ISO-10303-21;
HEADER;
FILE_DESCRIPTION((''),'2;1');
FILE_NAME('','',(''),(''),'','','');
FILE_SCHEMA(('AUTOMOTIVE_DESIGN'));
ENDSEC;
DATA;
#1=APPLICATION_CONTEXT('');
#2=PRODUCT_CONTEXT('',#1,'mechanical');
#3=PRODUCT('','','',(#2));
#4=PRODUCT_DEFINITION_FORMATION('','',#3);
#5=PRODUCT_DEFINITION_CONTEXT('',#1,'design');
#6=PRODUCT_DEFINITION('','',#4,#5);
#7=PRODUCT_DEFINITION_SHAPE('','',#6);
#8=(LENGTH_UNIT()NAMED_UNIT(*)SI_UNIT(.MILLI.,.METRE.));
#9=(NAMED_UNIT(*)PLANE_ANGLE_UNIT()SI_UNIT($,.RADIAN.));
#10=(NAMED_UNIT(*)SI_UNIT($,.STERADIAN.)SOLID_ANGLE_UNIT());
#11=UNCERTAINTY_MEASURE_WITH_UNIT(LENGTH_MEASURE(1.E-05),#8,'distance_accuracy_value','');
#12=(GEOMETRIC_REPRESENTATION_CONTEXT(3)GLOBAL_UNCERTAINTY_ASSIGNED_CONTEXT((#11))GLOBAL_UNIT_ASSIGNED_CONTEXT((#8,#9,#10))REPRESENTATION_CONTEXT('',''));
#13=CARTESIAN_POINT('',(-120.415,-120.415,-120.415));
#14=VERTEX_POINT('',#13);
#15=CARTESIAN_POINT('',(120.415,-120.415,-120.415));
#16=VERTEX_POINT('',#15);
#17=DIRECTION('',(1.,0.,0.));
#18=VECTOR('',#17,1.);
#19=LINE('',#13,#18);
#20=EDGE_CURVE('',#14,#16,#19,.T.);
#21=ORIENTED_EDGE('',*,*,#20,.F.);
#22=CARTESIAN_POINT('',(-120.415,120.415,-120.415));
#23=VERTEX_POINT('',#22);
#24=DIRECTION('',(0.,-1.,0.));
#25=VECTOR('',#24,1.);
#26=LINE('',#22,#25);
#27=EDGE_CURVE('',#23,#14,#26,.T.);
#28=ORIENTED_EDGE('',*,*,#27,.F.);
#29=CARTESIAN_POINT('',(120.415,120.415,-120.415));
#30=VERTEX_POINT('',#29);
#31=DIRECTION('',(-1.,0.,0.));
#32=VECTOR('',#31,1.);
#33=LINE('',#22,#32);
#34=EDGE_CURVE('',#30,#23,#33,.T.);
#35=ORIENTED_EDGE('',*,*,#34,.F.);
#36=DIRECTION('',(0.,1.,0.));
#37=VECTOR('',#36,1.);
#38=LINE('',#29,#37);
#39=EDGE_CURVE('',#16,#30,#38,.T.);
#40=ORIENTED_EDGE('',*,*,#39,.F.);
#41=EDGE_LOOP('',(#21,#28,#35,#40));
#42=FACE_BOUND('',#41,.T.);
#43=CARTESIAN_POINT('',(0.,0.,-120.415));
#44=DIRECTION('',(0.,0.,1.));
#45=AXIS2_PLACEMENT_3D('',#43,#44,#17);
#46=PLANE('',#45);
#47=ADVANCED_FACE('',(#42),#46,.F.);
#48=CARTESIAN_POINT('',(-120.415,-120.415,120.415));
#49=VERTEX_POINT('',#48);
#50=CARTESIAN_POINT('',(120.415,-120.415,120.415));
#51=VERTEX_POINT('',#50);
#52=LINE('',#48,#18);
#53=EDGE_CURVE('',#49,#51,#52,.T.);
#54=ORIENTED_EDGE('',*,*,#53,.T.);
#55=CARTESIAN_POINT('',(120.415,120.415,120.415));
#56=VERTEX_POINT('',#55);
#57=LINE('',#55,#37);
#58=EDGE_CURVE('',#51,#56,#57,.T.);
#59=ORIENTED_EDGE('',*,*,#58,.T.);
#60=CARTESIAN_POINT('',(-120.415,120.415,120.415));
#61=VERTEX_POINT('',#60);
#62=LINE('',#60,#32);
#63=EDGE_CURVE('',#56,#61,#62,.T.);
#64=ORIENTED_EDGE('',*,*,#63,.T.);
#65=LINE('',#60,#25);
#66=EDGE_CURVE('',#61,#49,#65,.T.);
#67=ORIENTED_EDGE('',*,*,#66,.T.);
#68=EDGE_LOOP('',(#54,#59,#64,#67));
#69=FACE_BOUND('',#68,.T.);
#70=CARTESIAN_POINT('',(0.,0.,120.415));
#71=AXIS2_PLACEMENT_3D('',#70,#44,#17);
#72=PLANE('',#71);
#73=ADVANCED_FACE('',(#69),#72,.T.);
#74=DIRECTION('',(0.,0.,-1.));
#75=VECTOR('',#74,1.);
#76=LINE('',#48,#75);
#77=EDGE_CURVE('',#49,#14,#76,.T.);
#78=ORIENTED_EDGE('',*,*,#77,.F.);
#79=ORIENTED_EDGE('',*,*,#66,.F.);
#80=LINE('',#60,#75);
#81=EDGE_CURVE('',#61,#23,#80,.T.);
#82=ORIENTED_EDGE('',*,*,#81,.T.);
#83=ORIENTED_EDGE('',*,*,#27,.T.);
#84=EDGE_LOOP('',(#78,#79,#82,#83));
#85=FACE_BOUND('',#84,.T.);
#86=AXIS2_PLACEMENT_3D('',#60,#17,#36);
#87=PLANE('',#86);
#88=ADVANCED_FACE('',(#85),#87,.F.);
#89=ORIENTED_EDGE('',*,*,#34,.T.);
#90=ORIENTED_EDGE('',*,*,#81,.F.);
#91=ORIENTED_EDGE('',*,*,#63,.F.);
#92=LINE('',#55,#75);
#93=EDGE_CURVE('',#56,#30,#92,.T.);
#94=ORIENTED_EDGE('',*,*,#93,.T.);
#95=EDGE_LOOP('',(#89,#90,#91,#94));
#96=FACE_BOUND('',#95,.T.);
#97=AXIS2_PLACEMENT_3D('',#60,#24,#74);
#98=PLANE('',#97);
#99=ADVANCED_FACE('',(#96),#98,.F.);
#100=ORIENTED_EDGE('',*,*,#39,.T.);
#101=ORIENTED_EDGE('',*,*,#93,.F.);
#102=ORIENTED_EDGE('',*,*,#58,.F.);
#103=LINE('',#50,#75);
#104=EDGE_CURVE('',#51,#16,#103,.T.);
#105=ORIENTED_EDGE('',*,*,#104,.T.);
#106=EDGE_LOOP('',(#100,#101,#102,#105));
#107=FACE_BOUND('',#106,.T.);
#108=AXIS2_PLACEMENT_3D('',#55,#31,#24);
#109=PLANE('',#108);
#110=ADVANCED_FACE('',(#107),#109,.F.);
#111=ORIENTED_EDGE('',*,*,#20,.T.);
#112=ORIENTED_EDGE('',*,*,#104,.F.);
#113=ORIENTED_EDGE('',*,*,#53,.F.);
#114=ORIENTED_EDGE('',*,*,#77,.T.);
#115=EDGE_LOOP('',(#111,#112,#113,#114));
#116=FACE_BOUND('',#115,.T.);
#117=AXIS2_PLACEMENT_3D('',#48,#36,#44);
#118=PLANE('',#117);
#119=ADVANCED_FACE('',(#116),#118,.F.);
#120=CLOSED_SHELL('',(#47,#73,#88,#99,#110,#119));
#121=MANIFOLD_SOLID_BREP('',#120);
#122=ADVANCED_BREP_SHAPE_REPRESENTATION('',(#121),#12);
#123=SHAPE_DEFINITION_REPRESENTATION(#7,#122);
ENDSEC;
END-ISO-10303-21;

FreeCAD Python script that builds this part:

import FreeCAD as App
import Part
import Sketcher

V = App.Vector


def add_polygon(sketch, points):
    """Adds a closed chain of lines whose ends are joined by coincident constraints."""
    first, n = sketch.GeometryCount, len(points)
    for a, b in zip(points, points[1:] + points[:1]):
        sketch.addGeometry(Part.LineSegment(App.Vector(*a, 0), App.Vector(*b, 0)), False)
    for i in range(n):
        sketch.addConstraint(Sketcher.Constraint("Coincident", first + i, 2, first + (i + 1) % n, 1))

doc = App.newDocument("Part")
body = doc.addObject("PartDesign::Body", "Body")

# Sketch on XY plane
sketch1 = body.newObject("Sketcher::SketchObject", "Sketch")
sketch1.AttachmentSupport = (doc.getObject("XY_Plane"), [""])
sketch1.MapMode = "FlatFace"
add_polygon(sketch1, [(-120, 120), (-120, -120), (120, -120), (120, 120)])  # lines 0-3
sketch1.addConstraint([
    Sketcher.Constraint("Vertical", 0),
    Sketcher.Constraint("Horizontal", 1),
    Sketcher.Constraint("Vertical", 2),
    Sketcher.Constraint("Horizontal", 3),
    Sketcher.Constraint("Symmetric", 0, 2, 2, 2, -1, 1),
    Sketcher.Constraint("Equal", 3, 0),
    Sketcher.Constraint("DistanceX", 1, 1, 1, 2, 240.83),
])
pad1 = body.newObject("PartDesign::Pad", "Pad")
pad1.Profile = sketch1
pad1.Length = 240.83
pad1.Midplane = True

doc.recompute()
